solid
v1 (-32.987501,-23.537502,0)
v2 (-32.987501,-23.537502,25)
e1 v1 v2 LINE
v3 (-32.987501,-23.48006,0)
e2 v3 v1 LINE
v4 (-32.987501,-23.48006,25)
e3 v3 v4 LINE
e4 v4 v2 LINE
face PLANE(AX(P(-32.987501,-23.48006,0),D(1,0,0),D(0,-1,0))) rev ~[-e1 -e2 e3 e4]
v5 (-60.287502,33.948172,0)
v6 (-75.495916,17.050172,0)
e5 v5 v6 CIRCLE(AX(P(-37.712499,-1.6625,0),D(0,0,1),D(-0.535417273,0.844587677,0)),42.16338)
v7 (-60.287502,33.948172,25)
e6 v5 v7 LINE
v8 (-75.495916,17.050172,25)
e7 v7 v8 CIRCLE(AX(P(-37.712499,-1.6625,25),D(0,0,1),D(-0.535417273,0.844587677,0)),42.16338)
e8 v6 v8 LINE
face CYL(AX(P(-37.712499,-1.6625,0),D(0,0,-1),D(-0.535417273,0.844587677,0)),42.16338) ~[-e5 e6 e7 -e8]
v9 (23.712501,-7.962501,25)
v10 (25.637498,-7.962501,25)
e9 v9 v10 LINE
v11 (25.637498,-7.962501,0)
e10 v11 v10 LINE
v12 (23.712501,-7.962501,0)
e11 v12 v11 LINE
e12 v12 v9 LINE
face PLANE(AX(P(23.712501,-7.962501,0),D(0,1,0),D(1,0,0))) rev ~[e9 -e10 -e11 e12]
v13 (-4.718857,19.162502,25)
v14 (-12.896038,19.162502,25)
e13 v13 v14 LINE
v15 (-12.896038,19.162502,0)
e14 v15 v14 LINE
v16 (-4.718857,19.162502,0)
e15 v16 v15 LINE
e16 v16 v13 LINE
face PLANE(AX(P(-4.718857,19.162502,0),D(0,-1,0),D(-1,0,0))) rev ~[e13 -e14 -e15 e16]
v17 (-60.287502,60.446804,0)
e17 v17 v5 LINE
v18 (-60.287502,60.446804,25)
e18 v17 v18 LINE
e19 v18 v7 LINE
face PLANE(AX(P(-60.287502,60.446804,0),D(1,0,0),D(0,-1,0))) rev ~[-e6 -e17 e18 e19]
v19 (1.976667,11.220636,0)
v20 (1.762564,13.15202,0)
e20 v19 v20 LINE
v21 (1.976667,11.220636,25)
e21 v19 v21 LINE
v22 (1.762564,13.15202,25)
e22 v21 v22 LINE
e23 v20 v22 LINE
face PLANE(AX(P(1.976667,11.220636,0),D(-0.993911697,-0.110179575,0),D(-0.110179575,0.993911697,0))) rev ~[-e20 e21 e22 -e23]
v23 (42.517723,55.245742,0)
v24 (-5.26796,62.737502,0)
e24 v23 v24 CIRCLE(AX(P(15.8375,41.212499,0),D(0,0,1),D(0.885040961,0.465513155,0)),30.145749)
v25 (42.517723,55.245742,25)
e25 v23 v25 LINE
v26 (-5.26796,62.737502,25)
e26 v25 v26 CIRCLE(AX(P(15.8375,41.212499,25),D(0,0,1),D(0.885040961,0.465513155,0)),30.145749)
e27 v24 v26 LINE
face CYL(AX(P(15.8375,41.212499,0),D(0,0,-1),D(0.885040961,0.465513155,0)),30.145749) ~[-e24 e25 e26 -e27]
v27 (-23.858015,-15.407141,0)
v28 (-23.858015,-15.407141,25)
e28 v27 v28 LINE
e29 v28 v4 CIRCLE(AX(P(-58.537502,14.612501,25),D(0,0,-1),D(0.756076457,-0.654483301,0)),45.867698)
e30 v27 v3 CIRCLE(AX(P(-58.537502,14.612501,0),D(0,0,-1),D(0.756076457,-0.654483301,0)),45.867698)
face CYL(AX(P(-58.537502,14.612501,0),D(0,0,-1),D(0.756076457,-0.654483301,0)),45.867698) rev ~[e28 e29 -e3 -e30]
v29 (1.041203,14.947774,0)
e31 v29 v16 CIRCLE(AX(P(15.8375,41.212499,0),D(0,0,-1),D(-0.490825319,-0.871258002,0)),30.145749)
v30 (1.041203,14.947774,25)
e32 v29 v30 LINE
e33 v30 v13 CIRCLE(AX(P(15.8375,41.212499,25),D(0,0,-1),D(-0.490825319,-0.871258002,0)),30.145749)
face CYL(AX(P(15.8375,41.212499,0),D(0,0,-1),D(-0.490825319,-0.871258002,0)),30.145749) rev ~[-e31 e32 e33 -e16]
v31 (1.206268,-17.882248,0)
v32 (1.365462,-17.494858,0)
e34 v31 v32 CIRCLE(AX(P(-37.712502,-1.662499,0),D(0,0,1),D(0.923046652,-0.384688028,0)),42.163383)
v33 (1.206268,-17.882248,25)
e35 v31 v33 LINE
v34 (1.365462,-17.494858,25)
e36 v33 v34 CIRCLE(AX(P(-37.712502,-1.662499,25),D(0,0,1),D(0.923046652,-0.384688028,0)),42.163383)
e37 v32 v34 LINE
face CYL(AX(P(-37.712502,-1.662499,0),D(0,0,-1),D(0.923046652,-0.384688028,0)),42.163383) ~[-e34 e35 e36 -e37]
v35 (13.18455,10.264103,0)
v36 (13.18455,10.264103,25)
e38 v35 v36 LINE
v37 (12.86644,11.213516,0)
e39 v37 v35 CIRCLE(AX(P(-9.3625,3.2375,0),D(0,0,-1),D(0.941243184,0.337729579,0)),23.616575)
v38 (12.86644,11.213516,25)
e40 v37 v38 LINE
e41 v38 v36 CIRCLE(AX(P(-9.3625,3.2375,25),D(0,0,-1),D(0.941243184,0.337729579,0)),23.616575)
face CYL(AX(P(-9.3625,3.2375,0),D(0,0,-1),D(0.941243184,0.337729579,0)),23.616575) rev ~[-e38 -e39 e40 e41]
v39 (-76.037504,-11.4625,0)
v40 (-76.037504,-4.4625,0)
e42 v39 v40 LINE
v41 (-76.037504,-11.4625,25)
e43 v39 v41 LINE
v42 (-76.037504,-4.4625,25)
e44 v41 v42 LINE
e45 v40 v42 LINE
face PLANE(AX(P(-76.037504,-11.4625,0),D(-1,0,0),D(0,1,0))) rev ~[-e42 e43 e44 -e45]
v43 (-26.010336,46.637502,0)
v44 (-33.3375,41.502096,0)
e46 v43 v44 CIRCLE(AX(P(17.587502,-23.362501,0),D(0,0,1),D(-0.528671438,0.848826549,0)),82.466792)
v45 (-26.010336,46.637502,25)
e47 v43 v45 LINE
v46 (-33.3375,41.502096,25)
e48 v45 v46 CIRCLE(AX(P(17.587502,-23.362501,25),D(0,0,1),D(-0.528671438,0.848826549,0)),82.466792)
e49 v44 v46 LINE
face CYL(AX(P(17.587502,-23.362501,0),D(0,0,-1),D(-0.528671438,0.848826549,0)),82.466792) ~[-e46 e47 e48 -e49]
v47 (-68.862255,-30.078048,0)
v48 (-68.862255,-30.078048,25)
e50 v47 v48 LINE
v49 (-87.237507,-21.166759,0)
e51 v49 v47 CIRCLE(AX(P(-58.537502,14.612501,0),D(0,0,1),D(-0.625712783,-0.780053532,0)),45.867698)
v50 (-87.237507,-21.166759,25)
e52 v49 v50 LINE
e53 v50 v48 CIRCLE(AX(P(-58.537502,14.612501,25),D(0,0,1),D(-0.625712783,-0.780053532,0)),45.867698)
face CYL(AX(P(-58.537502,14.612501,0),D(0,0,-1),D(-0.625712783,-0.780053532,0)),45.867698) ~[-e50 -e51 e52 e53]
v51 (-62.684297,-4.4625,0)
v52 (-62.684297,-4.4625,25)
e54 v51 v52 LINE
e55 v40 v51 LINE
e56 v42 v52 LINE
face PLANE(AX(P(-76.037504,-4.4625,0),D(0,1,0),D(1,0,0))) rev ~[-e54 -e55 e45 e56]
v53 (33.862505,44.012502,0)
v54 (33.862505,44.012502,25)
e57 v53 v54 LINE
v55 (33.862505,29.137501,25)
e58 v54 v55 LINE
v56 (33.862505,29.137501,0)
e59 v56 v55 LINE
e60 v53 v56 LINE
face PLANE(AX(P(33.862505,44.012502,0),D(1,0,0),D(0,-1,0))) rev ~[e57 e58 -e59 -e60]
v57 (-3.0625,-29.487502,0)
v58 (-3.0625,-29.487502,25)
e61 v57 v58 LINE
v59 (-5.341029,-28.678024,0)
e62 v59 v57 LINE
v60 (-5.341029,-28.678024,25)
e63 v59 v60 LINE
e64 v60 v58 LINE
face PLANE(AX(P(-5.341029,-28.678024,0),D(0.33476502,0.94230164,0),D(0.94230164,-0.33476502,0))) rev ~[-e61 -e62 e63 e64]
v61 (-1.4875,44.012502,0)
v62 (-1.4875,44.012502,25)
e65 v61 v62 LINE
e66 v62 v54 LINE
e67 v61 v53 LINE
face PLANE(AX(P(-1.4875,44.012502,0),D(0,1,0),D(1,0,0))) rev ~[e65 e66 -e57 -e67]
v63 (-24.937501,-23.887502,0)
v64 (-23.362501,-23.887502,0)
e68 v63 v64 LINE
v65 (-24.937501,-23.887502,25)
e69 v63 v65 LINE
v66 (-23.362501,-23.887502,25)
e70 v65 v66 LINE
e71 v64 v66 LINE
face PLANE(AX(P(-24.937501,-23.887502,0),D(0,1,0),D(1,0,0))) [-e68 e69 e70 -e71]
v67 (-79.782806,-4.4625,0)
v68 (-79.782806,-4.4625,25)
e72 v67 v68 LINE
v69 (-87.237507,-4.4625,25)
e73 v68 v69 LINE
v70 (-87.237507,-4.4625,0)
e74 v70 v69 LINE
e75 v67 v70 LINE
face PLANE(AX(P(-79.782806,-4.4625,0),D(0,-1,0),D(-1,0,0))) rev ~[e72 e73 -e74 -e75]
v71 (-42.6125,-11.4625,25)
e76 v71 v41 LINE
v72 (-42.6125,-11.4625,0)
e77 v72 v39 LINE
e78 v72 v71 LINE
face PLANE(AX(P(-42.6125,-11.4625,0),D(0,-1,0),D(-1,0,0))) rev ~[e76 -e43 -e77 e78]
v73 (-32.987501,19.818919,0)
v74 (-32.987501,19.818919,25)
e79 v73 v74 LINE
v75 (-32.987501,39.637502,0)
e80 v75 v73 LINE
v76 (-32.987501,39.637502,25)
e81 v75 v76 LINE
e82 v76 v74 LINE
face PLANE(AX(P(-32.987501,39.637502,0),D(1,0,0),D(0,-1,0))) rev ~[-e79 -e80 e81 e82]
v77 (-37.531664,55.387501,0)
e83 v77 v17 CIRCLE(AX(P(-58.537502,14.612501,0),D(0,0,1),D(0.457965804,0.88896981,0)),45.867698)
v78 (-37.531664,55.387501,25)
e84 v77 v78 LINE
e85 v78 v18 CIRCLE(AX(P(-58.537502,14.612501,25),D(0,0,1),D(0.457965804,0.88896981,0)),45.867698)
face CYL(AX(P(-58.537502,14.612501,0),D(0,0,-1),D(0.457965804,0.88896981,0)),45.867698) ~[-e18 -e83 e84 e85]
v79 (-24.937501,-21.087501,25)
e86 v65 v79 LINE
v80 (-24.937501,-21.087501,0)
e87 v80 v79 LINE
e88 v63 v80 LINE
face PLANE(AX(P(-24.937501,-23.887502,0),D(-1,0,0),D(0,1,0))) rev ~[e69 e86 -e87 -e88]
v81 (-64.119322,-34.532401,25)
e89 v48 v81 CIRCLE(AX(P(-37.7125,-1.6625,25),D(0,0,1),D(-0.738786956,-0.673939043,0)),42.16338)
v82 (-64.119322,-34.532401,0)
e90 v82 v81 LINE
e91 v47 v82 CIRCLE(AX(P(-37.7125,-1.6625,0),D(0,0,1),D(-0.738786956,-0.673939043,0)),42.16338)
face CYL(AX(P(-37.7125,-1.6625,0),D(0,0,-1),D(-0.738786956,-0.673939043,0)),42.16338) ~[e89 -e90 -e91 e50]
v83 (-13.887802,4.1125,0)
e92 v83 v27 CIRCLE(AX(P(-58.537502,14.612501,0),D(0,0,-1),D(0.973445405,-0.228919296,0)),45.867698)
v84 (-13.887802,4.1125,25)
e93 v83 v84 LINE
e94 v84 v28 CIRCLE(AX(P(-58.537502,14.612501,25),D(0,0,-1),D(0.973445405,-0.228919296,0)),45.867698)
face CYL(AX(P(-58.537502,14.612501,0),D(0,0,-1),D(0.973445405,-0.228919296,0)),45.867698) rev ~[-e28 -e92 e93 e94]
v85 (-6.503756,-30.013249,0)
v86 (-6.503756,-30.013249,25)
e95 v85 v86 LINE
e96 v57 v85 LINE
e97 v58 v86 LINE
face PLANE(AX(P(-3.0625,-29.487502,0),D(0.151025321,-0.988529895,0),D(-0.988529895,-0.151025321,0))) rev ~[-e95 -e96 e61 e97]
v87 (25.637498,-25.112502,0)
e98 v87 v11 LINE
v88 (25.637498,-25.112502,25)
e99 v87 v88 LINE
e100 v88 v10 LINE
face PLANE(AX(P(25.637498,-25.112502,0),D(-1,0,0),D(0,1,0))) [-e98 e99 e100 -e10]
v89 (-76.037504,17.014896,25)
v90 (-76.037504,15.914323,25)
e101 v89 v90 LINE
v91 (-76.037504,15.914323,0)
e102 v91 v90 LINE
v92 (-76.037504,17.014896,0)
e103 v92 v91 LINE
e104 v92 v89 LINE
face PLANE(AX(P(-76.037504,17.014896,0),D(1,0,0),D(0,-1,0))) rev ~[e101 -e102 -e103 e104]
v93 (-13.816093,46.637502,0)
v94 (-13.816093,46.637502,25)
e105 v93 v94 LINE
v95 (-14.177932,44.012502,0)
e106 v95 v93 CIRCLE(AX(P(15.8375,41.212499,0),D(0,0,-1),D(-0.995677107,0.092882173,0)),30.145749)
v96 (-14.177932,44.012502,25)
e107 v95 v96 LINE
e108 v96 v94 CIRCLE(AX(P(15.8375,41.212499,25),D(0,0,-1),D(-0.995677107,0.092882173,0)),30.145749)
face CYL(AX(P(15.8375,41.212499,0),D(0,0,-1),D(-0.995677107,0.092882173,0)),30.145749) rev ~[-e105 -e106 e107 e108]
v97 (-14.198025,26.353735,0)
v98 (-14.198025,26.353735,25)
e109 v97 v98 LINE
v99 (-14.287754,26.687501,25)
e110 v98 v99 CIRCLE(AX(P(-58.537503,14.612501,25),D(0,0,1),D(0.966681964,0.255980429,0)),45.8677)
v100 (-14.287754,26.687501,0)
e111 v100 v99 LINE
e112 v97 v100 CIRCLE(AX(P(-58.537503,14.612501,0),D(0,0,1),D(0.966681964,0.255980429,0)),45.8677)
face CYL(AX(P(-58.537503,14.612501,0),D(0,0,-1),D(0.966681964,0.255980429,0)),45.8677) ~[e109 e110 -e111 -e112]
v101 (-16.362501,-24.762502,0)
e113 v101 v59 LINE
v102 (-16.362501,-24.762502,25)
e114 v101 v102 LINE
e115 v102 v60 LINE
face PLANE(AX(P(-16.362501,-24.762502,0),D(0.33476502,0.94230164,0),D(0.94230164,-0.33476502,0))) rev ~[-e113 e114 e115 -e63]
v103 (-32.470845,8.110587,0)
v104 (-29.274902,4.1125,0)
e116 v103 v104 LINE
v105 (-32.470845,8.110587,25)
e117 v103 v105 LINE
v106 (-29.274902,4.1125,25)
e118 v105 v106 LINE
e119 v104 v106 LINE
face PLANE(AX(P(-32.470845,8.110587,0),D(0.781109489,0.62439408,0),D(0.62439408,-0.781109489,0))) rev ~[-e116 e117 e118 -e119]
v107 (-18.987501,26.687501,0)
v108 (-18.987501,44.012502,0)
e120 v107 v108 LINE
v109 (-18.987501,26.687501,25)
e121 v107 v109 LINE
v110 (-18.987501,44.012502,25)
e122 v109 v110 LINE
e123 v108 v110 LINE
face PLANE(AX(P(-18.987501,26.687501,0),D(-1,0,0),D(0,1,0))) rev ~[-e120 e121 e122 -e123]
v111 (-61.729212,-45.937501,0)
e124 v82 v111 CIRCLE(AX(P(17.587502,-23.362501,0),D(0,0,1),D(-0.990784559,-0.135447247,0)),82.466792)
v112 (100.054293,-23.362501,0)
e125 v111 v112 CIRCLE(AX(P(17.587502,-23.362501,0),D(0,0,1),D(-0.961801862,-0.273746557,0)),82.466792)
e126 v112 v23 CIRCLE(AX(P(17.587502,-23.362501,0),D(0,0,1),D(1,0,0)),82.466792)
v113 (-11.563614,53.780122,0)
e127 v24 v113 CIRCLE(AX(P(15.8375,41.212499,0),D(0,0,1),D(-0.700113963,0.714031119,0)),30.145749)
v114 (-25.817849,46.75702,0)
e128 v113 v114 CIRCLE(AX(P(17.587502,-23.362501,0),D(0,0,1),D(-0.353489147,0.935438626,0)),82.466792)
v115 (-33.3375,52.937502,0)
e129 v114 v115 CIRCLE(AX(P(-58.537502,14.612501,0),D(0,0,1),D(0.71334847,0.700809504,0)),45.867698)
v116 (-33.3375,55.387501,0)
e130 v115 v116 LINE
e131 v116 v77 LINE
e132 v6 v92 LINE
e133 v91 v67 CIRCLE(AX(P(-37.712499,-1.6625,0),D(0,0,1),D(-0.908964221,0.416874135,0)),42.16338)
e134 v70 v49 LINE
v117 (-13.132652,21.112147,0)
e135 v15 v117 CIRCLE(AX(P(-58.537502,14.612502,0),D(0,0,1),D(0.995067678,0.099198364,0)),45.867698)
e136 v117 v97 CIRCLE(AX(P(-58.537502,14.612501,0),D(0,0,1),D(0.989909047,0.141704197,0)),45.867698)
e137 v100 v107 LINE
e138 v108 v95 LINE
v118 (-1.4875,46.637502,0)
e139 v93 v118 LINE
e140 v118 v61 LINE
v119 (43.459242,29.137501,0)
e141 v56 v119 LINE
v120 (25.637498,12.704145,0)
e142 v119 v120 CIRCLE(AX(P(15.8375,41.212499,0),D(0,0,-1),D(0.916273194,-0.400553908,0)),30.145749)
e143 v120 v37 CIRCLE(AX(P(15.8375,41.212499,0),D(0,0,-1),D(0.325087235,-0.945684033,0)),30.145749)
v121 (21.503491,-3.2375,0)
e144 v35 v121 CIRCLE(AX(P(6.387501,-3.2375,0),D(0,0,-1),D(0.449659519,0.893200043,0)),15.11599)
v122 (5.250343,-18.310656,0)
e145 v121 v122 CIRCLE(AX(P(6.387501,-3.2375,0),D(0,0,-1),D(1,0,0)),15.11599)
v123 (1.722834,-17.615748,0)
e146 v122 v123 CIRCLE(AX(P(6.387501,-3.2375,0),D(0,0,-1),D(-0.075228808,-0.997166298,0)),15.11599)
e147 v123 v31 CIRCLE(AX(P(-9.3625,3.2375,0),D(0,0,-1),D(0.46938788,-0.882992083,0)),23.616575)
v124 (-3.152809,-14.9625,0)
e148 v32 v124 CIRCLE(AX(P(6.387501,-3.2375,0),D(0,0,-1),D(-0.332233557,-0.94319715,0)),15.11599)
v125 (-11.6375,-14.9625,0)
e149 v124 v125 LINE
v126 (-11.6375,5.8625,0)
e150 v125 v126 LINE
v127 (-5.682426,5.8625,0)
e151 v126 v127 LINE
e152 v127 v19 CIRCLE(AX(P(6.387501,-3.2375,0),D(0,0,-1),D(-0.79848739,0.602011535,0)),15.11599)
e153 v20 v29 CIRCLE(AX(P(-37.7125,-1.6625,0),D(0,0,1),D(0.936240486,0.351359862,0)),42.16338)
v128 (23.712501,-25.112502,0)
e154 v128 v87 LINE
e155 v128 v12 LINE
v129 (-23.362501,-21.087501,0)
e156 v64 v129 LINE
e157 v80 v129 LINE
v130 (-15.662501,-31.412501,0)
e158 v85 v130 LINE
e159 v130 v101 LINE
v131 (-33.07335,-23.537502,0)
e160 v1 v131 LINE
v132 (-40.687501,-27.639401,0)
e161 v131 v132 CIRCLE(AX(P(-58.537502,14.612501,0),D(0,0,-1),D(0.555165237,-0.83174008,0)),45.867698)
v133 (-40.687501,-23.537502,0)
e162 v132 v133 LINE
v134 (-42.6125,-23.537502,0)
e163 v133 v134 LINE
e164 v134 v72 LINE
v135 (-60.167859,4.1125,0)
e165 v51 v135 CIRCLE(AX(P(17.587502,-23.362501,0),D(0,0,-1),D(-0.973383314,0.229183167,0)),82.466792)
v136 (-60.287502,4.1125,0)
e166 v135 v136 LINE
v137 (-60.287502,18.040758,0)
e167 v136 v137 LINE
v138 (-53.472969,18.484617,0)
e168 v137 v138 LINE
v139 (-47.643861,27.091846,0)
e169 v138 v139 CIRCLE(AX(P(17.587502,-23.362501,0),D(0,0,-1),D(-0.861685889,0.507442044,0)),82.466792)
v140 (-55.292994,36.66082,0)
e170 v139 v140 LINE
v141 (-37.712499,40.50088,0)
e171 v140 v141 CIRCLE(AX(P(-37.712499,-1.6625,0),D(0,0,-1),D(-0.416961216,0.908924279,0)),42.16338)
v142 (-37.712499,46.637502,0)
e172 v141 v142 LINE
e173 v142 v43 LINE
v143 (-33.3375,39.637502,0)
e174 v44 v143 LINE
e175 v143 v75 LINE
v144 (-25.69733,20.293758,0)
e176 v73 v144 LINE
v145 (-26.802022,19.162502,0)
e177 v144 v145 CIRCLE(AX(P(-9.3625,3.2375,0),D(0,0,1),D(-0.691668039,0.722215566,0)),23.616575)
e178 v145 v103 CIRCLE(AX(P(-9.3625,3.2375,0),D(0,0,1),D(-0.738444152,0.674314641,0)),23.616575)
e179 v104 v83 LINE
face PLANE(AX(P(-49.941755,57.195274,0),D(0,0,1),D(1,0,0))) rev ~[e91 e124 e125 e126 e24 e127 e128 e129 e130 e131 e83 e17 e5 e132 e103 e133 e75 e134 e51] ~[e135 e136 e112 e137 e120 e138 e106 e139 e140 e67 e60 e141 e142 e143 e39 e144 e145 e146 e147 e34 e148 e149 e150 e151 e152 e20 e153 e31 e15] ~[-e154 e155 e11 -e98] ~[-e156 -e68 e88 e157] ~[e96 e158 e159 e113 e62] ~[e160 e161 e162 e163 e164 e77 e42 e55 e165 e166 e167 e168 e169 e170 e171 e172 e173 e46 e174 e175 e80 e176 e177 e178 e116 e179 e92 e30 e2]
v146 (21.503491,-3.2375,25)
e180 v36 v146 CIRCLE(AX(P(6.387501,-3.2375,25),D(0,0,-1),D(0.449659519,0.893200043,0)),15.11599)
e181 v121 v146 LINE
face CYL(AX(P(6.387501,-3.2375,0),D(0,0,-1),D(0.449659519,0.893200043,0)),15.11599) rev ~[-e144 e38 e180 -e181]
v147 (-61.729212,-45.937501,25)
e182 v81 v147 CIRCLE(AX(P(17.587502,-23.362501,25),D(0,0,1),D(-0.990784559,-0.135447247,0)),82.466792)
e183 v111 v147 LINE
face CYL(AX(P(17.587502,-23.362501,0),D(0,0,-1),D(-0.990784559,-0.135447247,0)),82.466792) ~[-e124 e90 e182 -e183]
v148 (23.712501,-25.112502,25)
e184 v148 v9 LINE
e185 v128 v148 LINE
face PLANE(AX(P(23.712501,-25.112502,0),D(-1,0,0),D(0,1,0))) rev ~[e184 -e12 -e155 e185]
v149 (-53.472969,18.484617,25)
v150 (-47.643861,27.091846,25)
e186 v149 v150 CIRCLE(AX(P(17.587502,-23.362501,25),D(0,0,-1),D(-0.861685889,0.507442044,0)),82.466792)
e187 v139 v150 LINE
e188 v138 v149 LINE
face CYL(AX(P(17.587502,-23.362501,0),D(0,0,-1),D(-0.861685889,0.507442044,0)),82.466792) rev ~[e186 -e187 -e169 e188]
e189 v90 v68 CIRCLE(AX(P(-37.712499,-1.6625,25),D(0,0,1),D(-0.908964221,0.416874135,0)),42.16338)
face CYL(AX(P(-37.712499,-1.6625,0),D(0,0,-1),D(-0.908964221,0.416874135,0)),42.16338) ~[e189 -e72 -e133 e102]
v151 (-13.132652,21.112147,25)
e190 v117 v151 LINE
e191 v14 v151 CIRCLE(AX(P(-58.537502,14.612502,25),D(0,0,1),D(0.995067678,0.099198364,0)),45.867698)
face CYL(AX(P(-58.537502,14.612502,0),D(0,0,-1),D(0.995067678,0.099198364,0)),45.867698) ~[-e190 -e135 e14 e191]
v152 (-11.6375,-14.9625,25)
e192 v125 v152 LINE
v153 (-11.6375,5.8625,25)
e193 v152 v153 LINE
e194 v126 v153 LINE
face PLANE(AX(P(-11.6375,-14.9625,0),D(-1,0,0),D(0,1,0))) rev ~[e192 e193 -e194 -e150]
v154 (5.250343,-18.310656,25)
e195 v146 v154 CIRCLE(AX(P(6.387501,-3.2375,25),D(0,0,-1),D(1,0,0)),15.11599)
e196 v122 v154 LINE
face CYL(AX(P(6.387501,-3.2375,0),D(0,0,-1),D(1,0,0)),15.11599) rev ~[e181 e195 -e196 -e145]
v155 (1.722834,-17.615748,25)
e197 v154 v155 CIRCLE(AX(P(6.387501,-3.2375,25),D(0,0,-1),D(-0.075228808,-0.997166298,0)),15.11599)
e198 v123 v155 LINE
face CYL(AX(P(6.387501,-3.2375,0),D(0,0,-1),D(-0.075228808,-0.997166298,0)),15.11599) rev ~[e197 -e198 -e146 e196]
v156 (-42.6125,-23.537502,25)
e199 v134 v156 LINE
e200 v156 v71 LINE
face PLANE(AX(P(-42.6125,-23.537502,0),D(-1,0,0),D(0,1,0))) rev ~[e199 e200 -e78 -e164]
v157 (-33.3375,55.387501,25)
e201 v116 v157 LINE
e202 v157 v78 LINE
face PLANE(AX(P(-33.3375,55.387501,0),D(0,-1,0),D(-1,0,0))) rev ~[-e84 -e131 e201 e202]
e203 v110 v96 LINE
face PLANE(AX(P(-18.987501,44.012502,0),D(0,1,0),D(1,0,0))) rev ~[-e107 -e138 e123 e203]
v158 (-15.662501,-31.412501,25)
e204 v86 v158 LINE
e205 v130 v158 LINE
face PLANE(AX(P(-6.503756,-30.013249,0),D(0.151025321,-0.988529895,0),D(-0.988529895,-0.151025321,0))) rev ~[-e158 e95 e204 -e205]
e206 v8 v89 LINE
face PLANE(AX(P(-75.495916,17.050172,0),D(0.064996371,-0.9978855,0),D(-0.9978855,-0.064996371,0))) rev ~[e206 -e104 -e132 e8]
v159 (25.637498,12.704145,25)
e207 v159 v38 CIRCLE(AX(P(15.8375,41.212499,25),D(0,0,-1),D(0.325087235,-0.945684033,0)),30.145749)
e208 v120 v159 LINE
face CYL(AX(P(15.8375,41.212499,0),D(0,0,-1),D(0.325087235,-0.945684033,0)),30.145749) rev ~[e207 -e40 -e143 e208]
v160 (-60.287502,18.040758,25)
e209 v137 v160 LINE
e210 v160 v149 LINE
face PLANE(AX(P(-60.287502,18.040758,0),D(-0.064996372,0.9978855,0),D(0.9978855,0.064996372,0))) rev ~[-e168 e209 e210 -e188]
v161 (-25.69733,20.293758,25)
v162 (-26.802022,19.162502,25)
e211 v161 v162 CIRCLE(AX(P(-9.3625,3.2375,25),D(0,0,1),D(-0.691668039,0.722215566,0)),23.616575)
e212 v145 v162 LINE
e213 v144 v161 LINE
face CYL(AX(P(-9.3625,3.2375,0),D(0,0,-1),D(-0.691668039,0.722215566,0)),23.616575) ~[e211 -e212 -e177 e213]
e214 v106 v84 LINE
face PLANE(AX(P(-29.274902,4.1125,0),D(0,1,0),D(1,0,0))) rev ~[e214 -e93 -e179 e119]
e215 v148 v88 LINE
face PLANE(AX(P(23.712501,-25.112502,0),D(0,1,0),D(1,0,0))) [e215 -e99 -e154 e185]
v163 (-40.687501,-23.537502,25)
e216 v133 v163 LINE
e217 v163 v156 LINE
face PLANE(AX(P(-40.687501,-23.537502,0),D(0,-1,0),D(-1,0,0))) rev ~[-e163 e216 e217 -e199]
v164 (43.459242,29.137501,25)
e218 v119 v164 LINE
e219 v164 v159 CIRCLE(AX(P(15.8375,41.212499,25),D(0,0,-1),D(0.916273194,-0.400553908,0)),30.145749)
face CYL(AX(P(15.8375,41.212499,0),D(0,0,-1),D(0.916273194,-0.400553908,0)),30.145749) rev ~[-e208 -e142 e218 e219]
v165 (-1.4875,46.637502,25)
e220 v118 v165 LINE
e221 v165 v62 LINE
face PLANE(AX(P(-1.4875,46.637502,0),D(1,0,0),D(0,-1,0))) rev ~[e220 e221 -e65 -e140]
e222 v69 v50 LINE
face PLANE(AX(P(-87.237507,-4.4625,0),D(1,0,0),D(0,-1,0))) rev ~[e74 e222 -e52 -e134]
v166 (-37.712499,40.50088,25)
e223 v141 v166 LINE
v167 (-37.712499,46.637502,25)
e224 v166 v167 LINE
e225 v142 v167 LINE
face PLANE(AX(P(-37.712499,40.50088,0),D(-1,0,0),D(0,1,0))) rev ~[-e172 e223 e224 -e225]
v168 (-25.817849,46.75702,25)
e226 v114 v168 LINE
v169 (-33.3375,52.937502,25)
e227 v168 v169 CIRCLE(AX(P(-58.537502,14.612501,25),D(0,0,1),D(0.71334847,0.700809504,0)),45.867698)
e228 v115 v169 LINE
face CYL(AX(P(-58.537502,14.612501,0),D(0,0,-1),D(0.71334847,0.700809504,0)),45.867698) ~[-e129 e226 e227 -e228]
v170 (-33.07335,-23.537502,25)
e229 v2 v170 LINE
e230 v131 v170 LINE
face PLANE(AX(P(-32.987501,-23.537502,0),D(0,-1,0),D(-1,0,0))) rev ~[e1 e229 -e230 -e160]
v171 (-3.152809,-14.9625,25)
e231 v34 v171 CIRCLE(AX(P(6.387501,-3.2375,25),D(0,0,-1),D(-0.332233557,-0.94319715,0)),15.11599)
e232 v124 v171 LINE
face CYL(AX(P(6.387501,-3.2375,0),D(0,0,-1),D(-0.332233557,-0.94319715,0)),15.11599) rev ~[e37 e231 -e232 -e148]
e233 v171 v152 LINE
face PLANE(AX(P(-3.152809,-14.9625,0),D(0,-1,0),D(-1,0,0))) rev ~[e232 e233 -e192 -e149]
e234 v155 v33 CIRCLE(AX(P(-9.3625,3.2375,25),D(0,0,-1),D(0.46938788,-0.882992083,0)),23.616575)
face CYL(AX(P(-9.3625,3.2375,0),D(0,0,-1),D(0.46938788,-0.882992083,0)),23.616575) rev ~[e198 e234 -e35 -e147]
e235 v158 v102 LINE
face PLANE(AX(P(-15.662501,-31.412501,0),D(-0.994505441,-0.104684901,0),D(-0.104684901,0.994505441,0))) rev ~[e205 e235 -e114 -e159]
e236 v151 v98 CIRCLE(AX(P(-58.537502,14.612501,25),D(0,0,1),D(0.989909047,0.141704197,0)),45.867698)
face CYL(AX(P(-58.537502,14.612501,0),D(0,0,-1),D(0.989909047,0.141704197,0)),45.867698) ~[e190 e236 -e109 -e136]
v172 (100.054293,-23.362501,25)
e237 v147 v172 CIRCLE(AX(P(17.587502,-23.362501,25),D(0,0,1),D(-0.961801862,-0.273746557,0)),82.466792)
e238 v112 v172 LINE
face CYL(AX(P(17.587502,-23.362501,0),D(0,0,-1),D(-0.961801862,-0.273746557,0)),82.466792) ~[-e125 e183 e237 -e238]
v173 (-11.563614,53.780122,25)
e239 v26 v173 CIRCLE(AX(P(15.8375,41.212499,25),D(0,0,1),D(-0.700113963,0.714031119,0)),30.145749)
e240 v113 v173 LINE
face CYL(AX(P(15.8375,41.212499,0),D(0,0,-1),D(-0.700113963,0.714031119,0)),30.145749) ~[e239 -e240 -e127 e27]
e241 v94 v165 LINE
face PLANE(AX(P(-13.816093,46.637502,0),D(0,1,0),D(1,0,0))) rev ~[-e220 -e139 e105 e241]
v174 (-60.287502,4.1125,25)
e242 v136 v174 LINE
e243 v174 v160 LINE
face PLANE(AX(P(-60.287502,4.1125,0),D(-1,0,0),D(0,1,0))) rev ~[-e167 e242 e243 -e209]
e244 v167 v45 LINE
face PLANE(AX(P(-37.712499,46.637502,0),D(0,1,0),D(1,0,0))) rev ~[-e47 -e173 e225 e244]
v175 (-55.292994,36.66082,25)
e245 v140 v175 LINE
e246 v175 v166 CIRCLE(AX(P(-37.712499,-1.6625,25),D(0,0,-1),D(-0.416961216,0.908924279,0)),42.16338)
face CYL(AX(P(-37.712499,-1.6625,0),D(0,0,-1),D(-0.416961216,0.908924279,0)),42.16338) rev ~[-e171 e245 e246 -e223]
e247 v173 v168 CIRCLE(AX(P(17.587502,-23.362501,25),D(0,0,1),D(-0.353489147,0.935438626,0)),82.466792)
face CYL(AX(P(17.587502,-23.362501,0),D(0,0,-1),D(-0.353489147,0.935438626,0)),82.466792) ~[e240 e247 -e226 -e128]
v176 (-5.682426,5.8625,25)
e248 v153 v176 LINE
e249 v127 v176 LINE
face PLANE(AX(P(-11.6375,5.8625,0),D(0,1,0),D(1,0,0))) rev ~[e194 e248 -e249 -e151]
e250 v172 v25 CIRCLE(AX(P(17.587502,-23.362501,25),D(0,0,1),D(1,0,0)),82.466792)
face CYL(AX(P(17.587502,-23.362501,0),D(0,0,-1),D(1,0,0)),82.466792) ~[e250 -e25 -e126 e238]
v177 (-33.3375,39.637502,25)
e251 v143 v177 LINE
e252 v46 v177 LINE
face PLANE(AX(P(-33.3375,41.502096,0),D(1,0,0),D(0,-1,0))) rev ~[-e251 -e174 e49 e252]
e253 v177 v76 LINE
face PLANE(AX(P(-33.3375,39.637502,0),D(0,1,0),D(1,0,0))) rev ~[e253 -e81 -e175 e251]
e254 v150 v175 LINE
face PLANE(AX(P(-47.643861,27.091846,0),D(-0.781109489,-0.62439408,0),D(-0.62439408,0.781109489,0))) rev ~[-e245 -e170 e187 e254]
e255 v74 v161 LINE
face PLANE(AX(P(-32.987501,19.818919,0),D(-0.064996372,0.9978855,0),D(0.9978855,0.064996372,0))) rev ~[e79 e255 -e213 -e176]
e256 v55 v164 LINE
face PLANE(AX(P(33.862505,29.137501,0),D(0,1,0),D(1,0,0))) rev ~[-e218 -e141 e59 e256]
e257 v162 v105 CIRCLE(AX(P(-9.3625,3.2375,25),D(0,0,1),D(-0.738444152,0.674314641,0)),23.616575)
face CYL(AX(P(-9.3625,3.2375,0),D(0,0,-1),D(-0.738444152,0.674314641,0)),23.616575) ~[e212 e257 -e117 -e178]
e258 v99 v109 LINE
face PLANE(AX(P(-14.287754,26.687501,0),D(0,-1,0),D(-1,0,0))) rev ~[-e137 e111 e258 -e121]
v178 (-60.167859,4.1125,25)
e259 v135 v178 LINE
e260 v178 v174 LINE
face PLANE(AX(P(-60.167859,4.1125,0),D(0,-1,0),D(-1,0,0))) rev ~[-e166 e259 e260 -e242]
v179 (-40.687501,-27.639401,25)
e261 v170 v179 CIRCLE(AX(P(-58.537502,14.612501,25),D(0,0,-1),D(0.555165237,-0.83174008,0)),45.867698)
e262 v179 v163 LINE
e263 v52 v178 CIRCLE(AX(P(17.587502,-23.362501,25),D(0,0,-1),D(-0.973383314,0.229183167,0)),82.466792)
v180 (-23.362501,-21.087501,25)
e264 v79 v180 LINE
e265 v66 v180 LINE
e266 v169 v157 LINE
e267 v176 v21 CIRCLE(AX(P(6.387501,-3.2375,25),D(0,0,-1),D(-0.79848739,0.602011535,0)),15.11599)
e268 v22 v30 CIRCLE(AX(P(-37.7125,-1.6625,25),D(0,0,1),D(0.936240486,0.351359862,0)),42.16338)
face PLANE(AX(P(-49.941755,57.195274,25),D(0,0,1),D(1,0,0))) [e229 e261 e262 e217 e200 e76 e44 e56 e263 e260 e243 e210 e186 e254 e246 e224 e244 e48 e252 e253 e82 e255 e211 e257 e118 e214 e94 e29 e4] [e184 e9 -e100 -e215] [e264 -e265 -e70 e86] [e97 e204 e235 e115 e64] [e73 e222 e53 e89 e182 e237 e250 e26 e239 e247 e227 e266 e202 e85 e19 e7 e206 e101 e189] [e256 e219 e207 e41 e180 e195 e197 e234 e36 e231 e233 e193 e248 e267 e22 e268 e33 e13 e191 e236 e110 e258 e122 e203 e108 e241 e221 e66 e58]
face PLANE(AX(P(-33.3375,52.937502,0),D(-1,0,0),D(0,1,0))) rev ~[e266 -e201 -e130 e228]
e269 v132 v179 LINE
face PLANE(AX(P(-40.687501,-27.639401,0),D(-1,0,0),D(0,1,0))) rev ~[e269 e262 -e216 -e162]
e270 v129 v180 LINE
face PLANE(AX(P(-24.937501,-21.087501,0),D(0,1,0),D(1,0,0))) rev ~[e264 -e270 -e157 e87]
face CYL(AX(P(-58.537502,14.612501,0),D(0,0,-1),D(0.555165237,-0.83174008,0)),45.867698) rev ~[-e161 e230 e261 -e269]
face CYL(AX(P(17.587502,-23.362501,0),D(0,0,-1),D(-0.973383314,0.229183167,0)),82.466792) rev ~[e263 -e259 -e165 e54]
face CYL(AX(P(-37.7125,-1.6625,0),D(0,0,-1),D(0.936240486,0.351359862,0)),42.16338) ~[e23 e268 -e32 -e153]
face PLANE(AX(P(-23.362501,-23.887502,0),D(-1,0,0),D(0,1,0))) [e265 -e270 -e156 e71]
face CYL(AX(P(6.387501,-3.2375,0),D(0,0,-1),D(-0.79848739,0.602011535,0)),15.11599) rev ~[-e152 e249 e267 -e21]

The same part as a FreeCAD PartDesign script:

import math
import FreeCAD as App
import Part
import Sketcher
from FreeCAD import Vector

doc = App.newDocument("Part")
body = doc.addObject("PartDesign::Body", "Body")

# Sketch on XY plane
sketch1 = body.newObject("Sketcher::SketchObject", "Sketch")
sketch1.AttachmentSupport = (doc.getObject("XY_Plane"), [""])
sketch1.MapMode = "FlatFace"
sketch1.addGeometry([
    Part.LineSegment(Vector(-60.287502, 60.446804, 0), Vector(-60.287502, 33.948172, 0)),  # 0
    Part.ArcOfCircle(Part.Circle(Vector(-37.712499, -1.6625, 0), Vector(0, 0, 1), 42.16338), math.radians(122.372214), math.radians(153.652557)),  # 1
    Part.LineSegment(Vector(-75.495916, 17.050172, 0), Vector(-76.037504, 17.014896, 0)),  # 2
    Part.LineSegment(Vector(-76.037504, 17.014896, 0), Vector(-76.037504, 15.914323, 0)),  # 3
    Part.ArcOfCircle(Part.Circle(Vector(-37.712499, -1.6625, 0), Vector(0, 0, 1), 42.16338), math.radians(155.362605), math.radians(183.80772)),  # 4
    Part.LineSegment(Vector(-79.782806, -4.4625, 0), Vector(-87.237507, -4.4625, 0)),  # 5
    Part.LineSegment(Vector(-87.237507, -4.4625, 0), Vector(-87.237507, -21.166759, 0)),  # 6
    Part.ArcOfCircle(Part.Circle(Vector(-58.537502, 14.612501, 0), Vector(0, 0, 1), 45.867698), math.radians(-128.734523), math.radians(-103.008674)),  # 7
    Part.ArcOfCircle(Part.Circle(Vector(-37.7125, -1.6625, 0), Vector(0, 0, 1), 42.16338), math.radians(-137.628185), math.radians(-128.777489)),  # 8
    Part.ArcOfCircle(Part.Circle(Vector(17.587502, -23.362501, 0), Vector(0, 0, 1), 82.466792), math.radians(-172.215517), math.radians(-164.112669)),  # 9
    Part.ArcOfCircle(Part.Circle(Vector(17.587502, -23.362501, 0), Vector(0, 0, 1), 82.466792), math.radians(-164.112669), math.radians(0)),  # 10
    Part.ArcOfCircle(Part.Circle(Vector(17.587502, -23.362501, 0), Vector(0, 0, 1), 82.466792), math.radians(0), math.radians(72.403829)),  # 11
    Part.ArcOfCircle(Part.Circle(Vector(15.8375, 41.212499, 0), Vector(0, 0, 1), 30.145749), math.radians(27.743438), math.radians(134.436148)),  # 12
    Part.ArcOfCircle(Part.Circle(Vector(15.8375, 41.212499, 0), Vector(0, 0, 1), 30.145749), math.radians(134.436148), math.radians(155.361268)),  # 13
    Part.ArcOfCircle(Part.Circle(Vector(17.587502, -23.362501, 0), Vector(0, 0, 1), 82.466792), math.radians(110.700876), math.radians(121.758315)),  # 14
    Part.ArcOfCircle(Part.Circle(Vector(-58.537502, 14.612501, 0), Vector(0, 0, 1), 45.867698), math.radians(44.491987), math.radians(56.673709)),  # 15
    Part.LineSegment(Vector(-33.3375, 52.937502, 0), Vector(-33.3375, 55.387501, 0)),  # 16
    Part.LineSegment(Vector(-33.3375, 55.387501, 0), Vector(-37.531664, 55.387501, 0)),  # 17
    Part.ArcOfCircle(Part.Circle(Vector(-58.537502, 14.612501, 0), Vector(0, 0, 1), 45.867698), math.radians(62.744078), math.radians(92.186548)),  # 18
    Part.LineSegment(Vector(-23.362501, -23.887502, 0), Vector(-24.937501, -23.887502, 0)),  # 19
    Part.LineSegment(Vector(-24.937501, -23.887502, 0), Vector(-24.937501, -21.087501, 0)),  # 20
    Part.LineSegment(Vector(-24.937501, -21.087501, 0), Vector(-23.362501, -21.087501, 0)),  # 21
    Part.LineSegment(Vector(-23.362501, -21.087501, 0), Vector(-23.362501, -23.887502, 0)),  # 22
    Part.LineSegment(Vector(-15.662501, -31.412501, 0), Vector(-16.362501, -24.762502, 0)),  # 23
    Part.LineSegment(Vector(-16.362501, -24.762502, 0), Vector(-5.341029, -28.678024, 0)),  # 24
    Part.LineSegment(Vector(-5.341029, -28.678024, 0), Vector(-3.0625, -29.487502, 0)),  # 25
    Part.LineSegment(Vector(-3.0625, -29.487502, 0), Vector(-6.503756, -30.013249, 0)),  # 26
    Part.LineSegment(Vector(-6.503756, -30.013249, 0), Vector(-15.662501, -31.412501, 0)),  # 27
    Part.LineSegment(Vector(25.637498, -25.112502, 0), Vector(23.712501, -25.112502, 0)),  # 28
    Part.LineSegment(Vector(23.712501, -25.112502, 0), Vector(23.712501, -7.962501, 0)),  # 29
    Part.LineSegment(Vector(23.712501, -7.962501, 0), Vector(25.637498, -7.962501, 0)),  # 30
    Part.LineSegment(Vector(25.637498, -7.962501, 0), Vector(25.637498, -25.112502, 0)),  # 31
    Part.LineSegment(Vector(-29.274902, 4.1125, 0), Vector(-13.887802, 4.1125, 0)),  # 32
    Part.ArcOfCircle(Part.Circle(Vector(-58.537502, 14.612501, 0), Vector(0, 0, 1), 45.867698), math.radians(-40.880483), math.radians(-13.233455)),  # 33
    Part.ArcOfCircle(Part.Circle(Vector(-58.537502, 14.612501, 0), Vector(0, 0, 1), 45.867698), math.radians(-56.148874), math.radians(-40.880483)),  # 34
    Part.LineSegment(Vector(-32.987501, -23.48006, 0), Vector(-32.987501, -23.537502, 0)),  # 35
    Part.LineSegment(Vector(-32.987501, -23.537502, 0), Vector(-33.07335, -23.537502, 0)),  # 36
    Part.ArcOfCircle(Part.Circle(Vector(-58.537502, 14.612501, 0), Vector(0, 0, 1), 45.867698), math.radians(-67.097586), math.radians(-56.277903)),  # 37
    Part.LineSegment(Vector(-40.687501, -27.639401, 0), Vector(-40.687501, -23.537502, 0)),  # 38
    Part.LineSegment(Vector(-40.687501, -23.537502, 0), Vector(-42.6125, -23.537502, 0)),  # 39
    Part.LineSegment(Vector(-42.6125, -23.537502, 0), Vector(-42.6125, -11.4625, 0)),  # 40
    Part.LineSegment(Vector(-42.6125, -11.4625, 0), Vector(-76.037504, -11.4625, 0)),  # 41
    Part.LineSegment(Vector(-76.037504, -11.4625, 0), Vector(-76.037504, -4.4625, 0)),  # 42
    Part.LineSegment(Vector(-76.037504, -4.4625, 0), Vector(-62.684297, -4.4625, 0)),  # 43
    Part.ArcOfCircle(Part.Circle(Vector(17.587502, -23.362501, 0), Vector(0, 0, 1), 82.466792), math.radians(160.539044), math.radians(166.751014)),  # 44
    Part.LineSegment(Vector(-60.167859, 4.1125, 0), Vector(-60.287502, 4.1125, 0)),  # 45
    Part.LineSegment(Vector(-60.287502, 4.1125, 0), Vector(-60.287502, 18.040758, 0)),  # 46
    Part.LineSegment(Vector(-60.287502, 18.040758, 0), Vector(-53.472969, 18.484617, 0)),  # 47
    Part.ArcOfCircle(Part.Circle(Vector(17.587502, -23.362501, 0), Vector(0, 0, 1), 82.466792), math.radians(142.279209), math.radians(149.506405)),  # 48
    Part.LineSegment(Vector(-47.643861, 27.091846, 0), Vector(-55.292994, 36.66082, 0)),  # 49
    Part.ArcOfCircle(Part.Circle(Vector(-37.712499, -1.6625, 0), Vector(0, 0, 1), 42.16338), math.radians(90), math.radians(114.642884)),  # 50
    Part.LineSegment(Vector(-37.712499, 40.50088, 0), Vector(-37.712499, 46.637502, 0)),  # 51
    Part.LineSegment(Vector(-37.712499, 46.637502, 0), Vector(-26.010336, 46.637502, 0)),  # 52
    Part.ArcOfCircle(Part.Circle(Vector(17.587502, -23.362501, 0), Vector(0, 0, 1), 82.466792), math.radians(121.915733), math.radians(128.135353)),  # 53
    Part.LineSegment(Vector(-33.3375, 41.502096, 0), Vector(-33.3375, 39.637502, 0)),  # 54
    Part.LineSegment(Vector(-33.3375, 39.637502, 0), Vector(-32.987501, 39.637502, 0)),  # 55
    Part.LineSegment(Vector(-32.987501, 39.637502, 0), Vector(-32.987501, 19.818919, 0)),  # 56
    Part.LineSegment(Vector(-32.987501, 19.818919, 0), Vector(-25.69733, 20.293758, 0)),  # 57
    Part.ArcOfCircle(Part.Circle(Vector(-9.3625, 3.2375, 0), Vector(0, 0, 1), 23.616575), math.radians(133.762294), math.radians(137.599049)),  # 58
    Part.ArcOfCircle(Part.Circle(Vector(-9.3625, 3.2375, 0), Vector(0, 0, 1), 23.616575), math.radians(137.599049), math.radians(168.091941)),  # 59
    Part.LineSegment(Vector(-32.470845, 8.110587, 0), Vector(-29.274902, 4.1125, 0)),  # 60
    Part.LineSegment(Vector(-11.6375, -14.9625, 0), Vector(-11.6375, 5.8625, 0)),  # 61
    Part.LineSegment(Vector(-11.6375, 5.8625, 0), Vector(-5.682426, 5.8625, 0)),  # 62
    Part.ArcOfCircle(Part.Circle(Vector(6.387501, -3.2375, 0), Vector(0, 0, 1), 15.11599), math.radians(106.965704), math.radians(142.985901)),  # 63
    Part.LineSegment(Vector(1.976667, 11.220636, 0), Vector(1.762564, 13.15202, 0)),  # 64
    Part.ArcOfCircle(Part.Circle(Vector(-37.7125, -1.6625, 0), Vector(0, 0, 1), 42.16338), math.radians(20.570513), math.radians(23.200519)),  # 65
    Part.ArcOfCircle(Part.Circle(Vector(15.8375, 41.212499, 0), Vector(0, 0, 1), 30.145749), math.radians(-132.992219), math.radians(-119.394842)),  # 66
    Part.LineSegment(Vector(-4.718857, 19.162502, 0), Vector(-12.896038, 19.162502, 0)),  # 67
    Part.ArcOfCircle(Part.Circle(Vector(-58.537502, 14.612502, 0), Vector(0, 0, 1), 45.867698), math.radians(5.693011), math.radians(8.146473)),  # 68
    Part.ArcOfCircle(Part.Circle(Vector(-58.537502, 14.612501, 0), Vector(0, 0, 1), 45.867698), math.radians(8.146473), math.radians(14.831688)),  # 69
    Part.ArcOfCircle(Part.Circle(Vector(-58.537503, 14.612501, 0), Vector(0, 0, 1), 45.8677), math.radians(14.831688), math.radians(15.263418)),  # 70
    Part.LineSegment(Vector(-14.287754, 26.687501, 0), Vector(-18.987501, 26.687501, 0)),  # 71
    Part.LineSegment(Vector(-18.987501, 26.687501, 0), Vector(-18.987501, 44.012502, 0)),  # 72
    Part.LineSegment(Vector(-18.987501, 44.012502, 0), Vector(-14.177932, 44.012502, 0)),  # 73
    Part.ArcOfCircle(Part.Circle(Vector(15.8375, 41.212499, 0), Vector(0, 0, 1), 30.145749), math.radians(169.632621), math.radians(174.670562)),  # 74
    Part.LineSegment(Vector(-13.816093, 46.637502, 0), Vector(-1.4875, 46.637502, 0)),  # 75
    Part.LineSegment(Vector(-1.4875, 46.637502, 0), Vector(-1.4875, 44.012502, 0)),  # 76
    Part.LineSegment(Vector(-1.4875, 44.012502, 0), Vector(33.862505, 44.012502, 0)),  # 77
    Part.LineSegment(Vector(33.862505, 44.012502, 0), Vector(33.862505, 29.137501, 0)),  # 78
    Part.LineSegment(Vector(33.862505, 29.137501, 0), Vector(43.459242, 29.137501, 0)),  # 79
    Part.ArcOfCircle(Part.Circle(Vector(15.8375, 41.212499, 0), Vector(0, 0, 1), 30.145749), math.radians(-71.02914), math.radians(-23.612811)),  # 80
    Part.ArcOfCircle(Part.Circle(Vector(15.8375, 41.212499, 0), Vector(0, 0, 1), 30.145749), math.radians(-95.656055), math.radians(-71.02914)),  # 81
    Part.ArcOfCircle(Part.Circle(Vector(-9.3625, 3.2375, 0), Vector(0, 0, 1), 23.616575), math.radians(17.309215), math.radians(19.738608)),  # 82
    Part.ArcOfCircle(Part.Circle(Vector(6.387501, -3.2375, 0), Vector(0, 0, 1), 15.11599), math.radians(0), math.radians(63.278159)),  # 83
    Part.ArcOfCircle(Part.Circle(Vector(6.387501, -3.2375, 0), Vector(0, 0, 1), 15.11599), math.radians(-94.314369), math.radians(0)),  # 84
    Part.ArcOfCircle(Part.Circle(Vector(6.387501, -3.2375, 0), Vector(0, 0, 1), 15.11599), math.radians(-107.974374), math.radians(-94.314369)),  # 85
    Part.ArcOfCircle(Part.Circle(Vector(-9.3625, 3.2375, 0), Vector(0, 0, 1), 23.616575), math.radians(-63.415649), math.radians(-62.00543)),  # 86
    Part.ArcOfCircle(Part.Circle(Vector(-37.712502, -1.662499, 0), Vector(0, 0, 1), 42.163383), math.radians(-22.624374), math.radians(-22.055233)),  # 87
    Part.ArcOfCircle(Part.Circle(Vector(6.387501, -3.2375, 0), Vector(0, 0, 1), 15.11599), math.radians(-129.134302), math.radians(-109.4044)),  # 88
    Part.LineSegment(Vector(-3.152809, -14.9625, 0), Vector(-11.6375, -14.9625, 0)),  # 89
], False)
sketch1.addConstraint([
    Sketcher.Constraint("Coincident", 0, 2, 1, 1),
    Sketcher.Constraint("Coincident", 1, 2, 2, 1),
    Sketcher.Constraint("Coincident", 2, 2, 3, 1),
    Sketcher.Constraint("Coincident", 3, 2, 4, 1),
    Sketcher.Constraint("Coincident", 4, 2, 5, 1),
    Sketcher.Constraint("Coincident", 5, 2, 6, 1),
    Sketcher.Constraint("Coincident", 6, 2, 7, 1),
    Sketcher.Constraint("Coincident", 7, 2, 8, 1),
    Sketcher.Constraint("Coincident", 8, 2, 9, 1),
    Sketcher.Constraint("Tangent", 9, 2, 10, 1),
    Sketcher.Constraint("Tangent", 10, 2, 11, 1),
    Sketcher.Constraint("Coincident", 11, 2, 12, 1),
    Sketcher.Constraint("Tangent", 12, 2, 13, 1),
    Sketcher.Constraint("Coincident", 13, 2, 14, 1),
    Sketcher.Constraint("Coincident", 14, 2, 15, 1),
    Sketcher.Constraint("Coincident", 15, 2, 16, 1),
    Sketcher.Constraint("Coincident", 16, 2, 17, 1),
    Sketcher.Constraint("Coincident", 17, 2, 18, 1),
    Sketcher.Constraint("Coincident", 18, 2, 0, 1),
    Sketcher.Constraint("Coincident", 19, 2, 20, 1),
    Sketcher.Constraint("Coincident", 20, 2, 21, 1),
    Sketcher.Constraint("Coincident", 21, 2, 22, 1),
    Sketcher.Constraint("Coincident", 22, 2, 19, 1),
    Sketcher.Constraint("Coincident", 23, 2, 24, 1),
    Sketcher.Constraint("Coincident", 24, 2, 25, 1),
    Sketcher.Constraint("Coincident", 25, 2, 26, 1),
    Sketcher.Constraint("Coincident", 26, 2, 27, 1),
    Sketcher.Constraint("Coincident", 27, 2, 23, 1),
    Sketcher.Constraint("Coincident", 28, 2, 29, 1),
    Sketcher.Constraint("Coincident", 29, 2, 30, 1),
    Sketcher.Constraint("Coincident", 30, 2, 31, 1),
    Sketcher.Constraint("Coincident", 31, 2, 28, 1),
    Sketcher.Constraint("Coincident", 32, 2, 33, 2),
    Sketcher.Constraint("Tangent", 33, 1, 34, 2),
    Sketcher.Constraint("Coincident", 34, 1, 35, 1),
    Sketcher.Constraint("Coincident", 35, 2, 36, 1),
    Sketcher.Constraint("Coincident", 36, 2, 37, 2),
    Sketcher.Constraint("Coincident", 37, 1, 38, 1),
    Sketcher.Constraint("Coincident", 38, 2, 39, 1),
    Sketcher.Constraint("Coincident", 39, 2, 40, 1),
    Sketcher.Constraint("Coincident", 40, 2, 41, 1),
    Sketcher.Constraint("Coincident", 41, 2, 42, 1),
    Sketcher.Constraint("Coincident", 42, 2, 43, 1),
    Sketcher.Constraint("Coincident", 43, 2, 44, 2),
    Sketcher.Constraint("Coincident", 44, 1, 45, 1),
    Sketcher.Constraint("Coincident", 45, 2, 46, 1),
    Sketcher.Constraint("Coincident", 46, 2, 47, 1),
    Sketcher.Constraint("Coincident", 47, 2, 48, 2),
    Sketcher.Constraint("Coincident", 48, 1, 49, 1),
    Sketcher.Constraint("Coincident", 49, 2, 50, 2),
    Sketcher.Constraint("Coincident", 50, 1, 51, 1),
    Sketcher.Constraint("Coincident", 51, 2, 52, 1),
    Sketcher.Constraint("Coincident", 52, 2, 53, 1),
    Sketcher.Constraint("Coincident", 53, 2, 54, 1),
    Sketcher.Constraint("Coincident", 54, 2, 55, 1),
    Sketcher.Constraint("Coincident", 55, 2, 56, 1),
    Sketcher.Constraint("Coincident", 56, 2, 57, 1),
    Sketcher.Constraint("Coincident", 57, 2, 58, 1),
    Sketcher.Constraint("Tangent", 58, 2, 59, 1),
    Sketcher.Constraint("Coincident", 59, 2, 60, 1),
    Sketcher.Constraint("Coincident", 60, 2, 32, 1),
    Sketcher.Constraint("Coincident", 61, 2, 62, 1),
    Sketcher.Constraint("Coincident", 62, 2, 63, 2),
    Sketcher.Constraint("Coincident", 63, 1, 64, 1),
    Sketcher.Constraint("Coincident", 64, 2, 65, 1),
    Sketcher.Constraint("Coincident", 65, 2, 66, 2),
    Sketcher.Constraint("Coincident", 66, 1, 67, 1),
    Sketcher.Constraint("Coincident", 67, 2, 68, 1),
    Sketcher.Constraint("Tangent", 68, 2, 69, 1),
    Sketcher.Constraint("Tangent", 69, 2, 70, 1),
    Sketcher.Constraint("Coincident", 70, 2, 71, 1),
    Sketcher.Constraint("Coincident", 71, 2, 72, 1),
    Sketcher.Constraint("Coincident", 72, 2, 73, 1),
    Sketcher.Constraint("Coincident", 73, 2, 74, 2),
    Sketcher.Constraint("Coincident", 74, 1, 75, 1),
    Sketcher.Constraint("Coincident", 75, 2, 76, 1),
    Sketcher.Constraint("Coincident", 76, 2, 77, 1),
    Sketcher.Constraint("Coincident", 77, 2, 78, 1),
    Sketcher.Constraint("Coincident", 78, 2, 79, 1),
    Sketcher.Constraint("Coincident", 79, 2, 80, 2),
    Sketcher.Constraint("Tangent", 80, 1, 81, 2),
    Sketcher.Constraint("Coincident", 81, 1, 82, 2),
    Sketcher.Constraint("Coincident", 82, 1, 83, 2),
    Sketcher.Constraint("Tangent", 83, 1, 84, 2),
    Sketcher.Constraint("Tangent", 84, 1, 85, 2),
    Sketcher.Constraint("Coincident", 85, 1, 86, 2),
    Sketcher.Constraint("Coincident", 86, 1, 87, 1),
    Sketcher.Constraint("Coincident", 87, 2, 88, 2),
    Sketcher.Constraint("Coincident", 88, 1, 89, 1),
    Sketcher.Constraint("Coincident", 89, 2, 61, 1),
    Sketcher.Constraint("Vertical", 0),
    Sketcher.Constraint("Vertical", 3),
    Sketcher.Constraint("Horizontal", 5),
    Sketcher.Constraint("Vertical", 6),
    Sketcher.Constraint("Vertical", 16),
    Sketcher.Constraint("Horizontal", 17),
    Sketcher.Constraint("Horizontal", 19),
    Sketcher.Constraint("Vertical", 20),
    Sketcher.Constraint("Horizontal", 21),
    Sketcher.Constraint("Vertical", 22),
    Sketcher.Constraint("Horizontal", 28),
    Sketcher.Constraint("Vertical", 29),
    Sketcher.Constraint("Horizontal", 30),
    Sketcher.Constraint("Vertical", 31),
    Sketcher.Constraint("Horizontal", 32),
    Sketcher.Constraint("Vertical", 35),
    Sketcher.Constraint("Horizontal", 36),
    Sketcher.Constraint("Vertical", 38),
    Sketcher.Constraint("Horizontal", 39),
    Sketcher.Constraint("Vertical", 40),
    Sketcher.Constraint("Horizontal", 41),
    Sketcher.Constraint("Vertical", 42),
    Sketcher.Constraint("Horizontal", 43),
    Sketcher.Constraint("Horizontal", 45),
    Sketcher.Constraint("Vertical", 46),
    Sketcher.Constraint("Vertical", 51),
    Sketcher.Constraint("Horizontal", 52),
    Sketcher.Constraint("Vertical", 54),
    Sketcher.Constraint("Horizontal", 55),
    Sketcher.Constraint("Vertical", 56),
    Sketcher.Constraint("Vertical", 61),
    Sketcher.Constraint("Horizontal", 62),
    Sketcher.Constraint("Horizontal", 67),
    Sketcher.Constraint("Horizontal", 71),
    Sketcher.Constraint("Vertical", 72),
    Sketcher.Constraint("Horizontal", 73),
    Sketcher.Constraint("Horizontal", 75),
    Sketcher.Constraint("Vertical", 76),
    Sketcher.Constraint("Horizontal", 77),
    Sketcher.Constraint("Vertical", 78),
    Sketcher.Constraint("Horizontal", 79),
    Sketcher.Constraint("Horizontal", 89),
    Sketcher.Constraint("Coincident", 4, 3, 1, 3),
    Sketcher.Constraint("Coincident", 8, 3, 1, 3),
    Sketcher.Constraint("Coincident", 11, 3, 9, 3),
    Sketcher.Constraint("Coincident", 14, 3, 9, 3),
    Sketcher.Constraint("Coincident", 15, 3, 7, 3),
    Sketcher.Constraint("Coincident", 18, 3, 7, 3),
    Sketcher.Constraint("Coincident", 33, 3, 7, 3),
    Sketcher.Constraint("Coincident", 37, 3, 7, 3),
    Sketcher.Constraint("Coincident", 44, 3, 9, 3),
    Sketcher.Constraint("Coincident", 48, 3, 9, 3),
    Sketcher.Constraint("Coincident", 50, 3, 1, 3),
    Sketcher.Constraint("Coincident", 53, 3, 9, 3),
    Sketcher.Constraint("Coincident", 65, 3, 1, 3),
    Sketcher.Constraint("Coincident", 66, 3, 12, 3),
    Sketcher.Constraint("Coincident", 68, 3, 7, 3),
    Sketcher.Constraint("Coincident", 70, 3, 7, 3),
    Sketcher.Constraint("Coincident", 74, 3, 12, 3),
    Sketcher.Constraint("Coincident", 80, 3, 12, 3),
    Sketcher.Constraint("Coincident", 82, 3, 58, 3),
    Sketcher.Constraint("Coincident", 83, 3, 63, 3),
    Sketcher.Constraint("Coincident", 85, 3, 63, 3),
    Sketcher.Constraint("Coincident", 86, 3, 58, 3),
    Sketcher.Constraint("Coincident", 87, 3, 1, 3),
    Sketcher.Constraint("Coincident", 88, 3, 63, 3),
    Sketcher.Constraint("Equal", 1, 4),
    Sketcher.Constraint("Equal", 4, 8),
    Sketcher.Constraint("Equal", 12, 13),
    Sketcher.Constraint("Equal", 11, 14),
    Sketcher.Constraint("Equal", 7, 15),
    Sketcher.Constraint("Equal", 15, 18),
    Sketcher.Constraint("Equal", 18, 33),
    Sketcher.Constraint("Equal", 33, 34),
    Sketcher.Constraint("Equal", 34, 37),
    Sketcher.Constraint("Equal", 14, 44),
    Sketcher.Constraint("Equal", 44, 48),
    Sketcher.Constraint("Equal", 8, 50),
    Sketcher.Constraint("Equal", 48, 53),
    Sketcher.Constraint("Equal", 58, 59),
    Sketcher.Constraint("Equal", 50, 65),
    Sketcher.Constraint("Equal", 13, 66),
    Sketcher.Constraint("Equal", 37, 68),
    Sketcher.Constraint("Equal", 66, 74),
    Sketcher.Constraint("Equal", 74, 80),
    Sketcher.Constraint("Equal", 80, 81),
    Sketcher.Constraint("Equal", 59, 82),
    Sketcher.Constraint("Equal", 63, 83),
    Sketcher.Constraint("Equal", 82, 86),
    Sketcher.Constraint("Equal", 85, 88),
    Sketcher.Constraint("Parallel", 24, 25),
    Sketcher.Constraint("Parallel", 26, 27),
    Sketcher.Constraint("Parallel", 2, 47),
    Sketcher.Constraint("Parallel", 47, 57),
    Sketcher.Constraint("Parallel", 49, 60),
    Sketcher.Constraint("Horizontal", 53, 3, 10, 2),
    Sketcher.Constraint("Horizontal", 36, 2, 38, 2),
    Sketcher.Constraint("Horizontal", 5, 2, 42, 2),
    Sketcher.Constraint("Horizontal", 32, 2, 44, 1),
    Sketcher.Constraint("Horizontal", 58, 2, 66, 1),
    Sketcher.Constraint("Horizontal", 52, 2, 74, 1),
    Sketcher.Constraint("Horizontal", 73, 2, 76, 2),
    Sketcher.Constraint("Horizontal", 88, 3, 83, 1),
    Sketcher.Constraint("Vertical", 3, 2, 41, 2),
    Sketcher.Constraint("Vertical", 18, 2, 45, 2),
    Sketcher.Constraint("Vertical", 65, 3, 50, 1),
    Sketcher.Constraint("Vertical", 16, 2, 53, 2),
    Sketcher.Constraint("Vertical", 35, 2, 55, 2),
    Sketcher.Constraint("Vertical", 31, 2, 80, 1),
    Sketcher.Constraint("Equal", 30, 39),
    Sketcher.Constraint("DistanceY", 42, 1, 42, 2, 7.0),
    Sketcher.Constraint("DistanceY", 20, 1, 20, 2, 2.800001),
    Sketcher.Constraint("DistanceX", 55, 1, 55, 2, 0.349998),
    Sketcher.Constraint("DistanceY", 16, 1, 16, 2, 2.449999),
    Sketcher.Constraint("DistanceY", 29, 1, 29, 2, 17.150002),
    Sketcher.Constraint("Radius", 7, 45.867698),
    Sketcher.Constraint("DistanceX", 19, 2, 19, 1, 1.575001),
    Sketcher.Constraint("DistanceX", 39, 2, 39, 1, 1.924999),
    Sketcher.Constraint("DistanceY", 40, 1, 40, 2, 12.075001),
    Sketcher.Constraint("DistanceY", 61, 1, 61, 2, 20.825),
    Sketcher.Constraint("DistanceY", 72, 1, 72, 2, 17.325001),
    Sketcher.Constraint("DistanceY", 76, 2, 76, 1, 2.625),
    Sketcher.Constraint("DistanceY", 78, 2, 78, 1, 14.875),
    Sketcher.Constraint("Radius", 1, 42.16338),
    Sketcher.Constraint("Radius", 9, 82.466792),
    Sketcher.Constraint("Radius", 12, 30.145749),
    Sketcher.Constraint("Radius", 63, 15.11599),
    Sketcher.Constraint("DistanceX", 5, 2, 5, 1, 7.454702),
    Sketcher.Constraint("DistanceX", 32, 1, 32, 2, 15.387101),
    Sketcher.Constraint("DistanceY", 38, 1, 38, 2, 4.101899),
    Sketcher.Constraint("Radius", 58, 23.616575),
    Sketcher.Constraint("Radius", 87, 42.163383),
    Sketcher.Constraint("DistanceX", 36, 2, 36, 1, 0.085849),
    Sketcher.Constraint("DistanceX", 67, 2, 67, 1, 8.17718),
    Sketcher.Constraint("DistanceX", 73, 1, 73, 2, 4.809569),
    Sketcher.Constraint("DistanceX", 89, 2, 89, 1, 8.484691),
    Sketcher.Constraint("DistanceY", 6, 2, 6, 1, 16.704259),
    Sketcher.Constraint("DistanceY", 46, 1, 46, 2, 13.928258),
    Sketcher.Constraint("DistanceY", 51, 1, 51, 2, 6.136621),
    Sketcher.Constraint("DistanceX", 1, 3, -1, 1, 37.712499),
    Sketcher.Constraint("DistanceY", 1, 3, -1, 1, 1.6625),
    Sketcher.Constraint("DistanceX", 7, 3, -1, 1, 58.537502),
    Sketcher.Constraint("DistanceY", -1, 1, 7, 3, 14.612501),
    Sketcher.Constraint("DistanceX", -1, 1, 9, 3, 17.587502),
    Sketcher.Constraint("DistanceY", 9, 3, -1, 1, 23.362501),
    Sketcher.Constraint("DistanceX", -1, 1, 12, 3, 15.8375),
    Sketcher.Constraint("DistanceY", -1, 1, 12, 3, 41.212499),
    Sketcher.Constraint("DistanceX", 58, 3, -1, 1, 9.3625),
    Sketcher.Constraint("DistanceY", -1, 1, 58, 3, 3.2375),
    Sketcher.Constraint("DistanceX", -1, 1, 63, 3, 6.387501),
    Sketcher.Constraint("DistanceY", 63, 3, -1, 1, 3.2375),
    Sketcher.Constraint("DistanceX", 0, 2, -1, 1, 60.287502),
    Sketcher.Constraint("DistanceY", 9, 2, -1, 1, 45.937501),
    Sketcher.Constraint("DistanceX", 19, 2, -1, 1, 24.937501),
    Sketcher.Constraint("DistanceY", 20, 2, -1, 1, 21.087501),
    Sketcher.Constraint("DistanceX", 23, 2, -1, 1, 16.362501),
    Sketcher.Constraint("DistanceY", 23, 2, -1, 1, 24.762502),
    Sketcher.Constraint("DistanceX", 25, 2, -1, 1, 3.0625),
    Sketcher.Constraint("DistanceY", 25, 2, -1, 1, 29.487502),
    Sketcher.Constraint("DistanceX", 27, 2, -1, 1, 15.662501),
    Sketcher.Constraint("DistanceY", 27, 2, -1, 1, 31.412501),
    Sketcher.Constraint("DistanceX", -1, 1, 28, 2, 23.712501),
    Sketcher.Constraint("DistanceY", 29, 2, -1, 1, 7.962501),
    Sketcher.Constraint("DistanceX", 32, 2, -1, 1, 13.887802),
    Sketcher.Constraint("DistanceX", 61, 2, -1, 1, 11.6375),
    Sketcher.Constraint("DistanceX", 75, 2, -1, 1, 1.4875),
    Sketcher.Constraint("Distance", 24, 11.696331),
    Sketcher.Constraint("Distance", 49, 12.25049),
    Sketcher.Constraint("Distance", 57, 7.305619),
    Sketcher.Constraint("Distance", 60, 5.118471),
    Sketcher.Constraint("DistanceX", 41, 2, 41, 1, 33.425003),
    Sketcher.Constraint("DistanceX", 77, 1, 77, 2, 35.350005),
    Sketcher.Constraint("DistanceY", 3, 2, 3, 1, 1.100573),
    Sketcher.Constraint("DistanceY", 54, 2, 54, 1, 1.864594),
    Sketcher.Constraint("DistanceY", 56, 2, 56, 1, 19.818583),
    Sketcher.Constraint("DistanceX", 12, 2, -1, 1, 5.26796),
    Sketcher.Constraint("DistanceY", 26, 2, -1, 1, 30.013249),
    Sketcher.Constraint("DistanceY", 33, 1, -1, 1, 15.407141),
    Sketcher.Constraint("DistanceY", -1, 1, 64, 2, 13.15202),
    Sketcher.Constraint("Distance", 64, 1.943215),
    Sketcher.Constraint("DistanceX", 68, 2, -1, 1, 13.132652),
    Sketcher.Constraint("DistanceX", 69, 2, -1, 1, 14.198025),
    Sketcher.Constraint("DistanceX", -1, 1, 84, 1, 5.250343),
])
pad1 = body.newObject("PartDesign::Pad", "Pad")
pad1.Profile = sketch1
pad1.Length = 25

doc.recompute()
